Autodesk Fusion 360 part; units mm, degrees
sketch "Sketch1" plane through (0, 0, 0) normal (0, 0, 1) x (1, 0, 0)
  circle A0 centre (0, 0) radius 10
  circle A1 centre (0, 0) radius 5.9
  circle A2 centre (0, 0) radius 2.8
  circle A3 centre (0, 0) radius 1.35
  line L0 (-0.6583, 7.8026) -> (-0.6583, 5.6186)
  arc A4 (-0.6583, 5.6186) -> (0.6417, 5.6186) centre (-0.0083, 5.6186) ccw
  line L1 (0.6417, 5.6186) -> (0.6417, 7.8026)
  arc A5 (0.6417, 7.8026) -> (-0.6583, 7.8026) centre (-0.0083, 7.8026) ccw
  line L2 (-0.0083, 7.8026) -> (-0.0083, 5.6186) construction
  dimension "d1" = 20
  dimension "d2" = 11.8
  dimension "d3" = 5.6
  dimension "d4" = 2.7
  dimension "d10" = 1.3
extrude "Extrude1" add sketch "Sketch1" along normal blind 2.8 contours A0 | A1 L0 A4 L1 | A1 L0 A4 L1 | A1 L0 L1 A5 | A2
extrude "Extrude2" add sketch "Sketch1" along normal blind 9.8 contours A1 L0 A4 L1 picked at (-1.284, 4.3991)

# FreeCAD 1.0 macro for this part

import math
import FreeCAD as App
import Part
import Sketcher

V = App.Vector

doc = App.newDocument("Part")
body = doc.addObject("PartDesign::Body", "Body")

sketch1 = doc.addObject("Sketcher::SketchObject", "Sketch")
body.addObject(sketch1)
sketch1.AttachmentSupport = (doc.XY_Plane, [""])
sketch1.MapMode = "FlatFace"
sketch1.addGeometry(Part.Circle(V(0, 0, 0), V(0, 0, 1), 10), False)
sketch1.addGeometry(Part.Circle(V(0, 0, 0), V(0, 0, 1), 1.35), False)
sketch1.addConstraint(Sketcher.Constraint("Coincident", 0, 3, -1, 1))
sketch1.addConstraint(Sketcher.Constraint("Coincident", 1, 3, -1, 1))
sketch1.addConstraint(Sketcher.Constraint("Diameter", 0, 20.0))
sketch1.addConstraint(Sketcher.Constraint("Diameter", 1, 2.7))
pad1 = doc.addObject("PartDesign::Pad", "Pad")
body.addObject(pad1)
pad1.Profile = sketch1
pad1.Length = 2.8

sketch2 = doc.addObject("Sketcher::SketchObject", "Sketch001")
body.addObject(sketch2)
sketch2.AttachmentSupport = (doc.XY_Plane, [""])
sketch2.MapMode = "FlatFace"
sketch2.addGeometry(Part.ArcOfCircle(Part.Circle(V(0, 0, 0), V(0, 0, 1), 5.9), math.radians(96.406189), math.radians(443.756004)), False)
sketch2.addGeometry(Part.LineSegment(V(0.6417, 5.865, 0), V(0.6417, 5.6186, 0)), False)
sketch2.addGeometry(Part.ArcOfCircle(Part.Circle(V(-0.0083, 5.6186, 0), V(0, 0, 1), 0.65), math.radians(180), math.radians(360)), False)
sketch2.addGeometry(Part.LineSegment(V(-0.6583, 5.6186, 0), V(-0.6583, 5.86316, 0)), False)
sketch2.addGeometry(Part.Circle(V(0, 0, 0), V(0, 0, 1), 2.8), False)
sketch2.addConstraint(Sketcher.Constraint("Coincident", 0, 2, 1, 1))
sketch2.addConstraint(Sketcher.Constraint("Tangent", 1, 2, 2, 2))
sketch2.addConstraint(Sketcher.Constraint("Tangent", 2, 1, 3, 1))
sketch2.addConstraint(Sketcher.Constraint("Coincident", 3, 2, 0, 1))
sketch2.addConstraint(Sketcher.Constraint("Vertical", 1))
sketch2.addConstraint(Sketcher.Constraint("Vertical", 3))
sketch2.addConstraint(Sketcher.Constraint("Coincident", 0, 3, -1, 1))
sketch2.addConstraint(Sketcher.Constraint("Coincident", 4, 3, -1, 1))
sketch2.addConstraint(Sketcher.Constraint("Diameter", 4, 5.6))
sketch2.addConstraint(Sketcher.Constraint("Radius", 0, 5.9))
sketch2.addConstraint(Sketcher.Constraint("Radius", 2, 0.65))
sketch2.addConstraint(Sketcher.Constraint("DistanceY", 1, 2, 1, 1, 0.2464))
sketch2.addConstraint(Sketcher.Constraint("DistanceY", 3, 1, 3, 2, 0.2446))
pad2 = doc.addObject("PartDesign::Pad", "Pad001")
body.addObject(pad2)
pad2.Profile = sketch2
pad2.Length = 9.8

doc.recompute()
